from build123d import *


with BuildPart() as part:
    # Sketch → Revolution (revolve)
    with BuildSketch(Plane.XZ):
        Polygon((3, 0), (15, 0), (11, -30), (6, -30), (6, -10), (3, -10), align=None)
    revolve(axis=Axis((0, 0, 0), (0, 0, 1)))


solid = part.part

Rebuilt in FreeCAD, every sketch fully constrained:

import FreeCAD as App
import Part
import Sketcher

V = App.Vector
Q = App.Units.Quantity


def add_polygon(sketch, points):
    """Adds a closed chain of lines whose ends are joined by coincident constraints."""
    first, n = sketch.GeometryCount, len(points)
    for a, b in zip(points, points[1:] + points[:1]):
        sketch.addGeometry(Part.LineSegment(App.Vector(*a, 0), App.Vector(*b, 0)), False)
    for i in range(n):
        sketch.addConstraint(Sketcher.Constraint("Coincident", first + i, 2, first + (i + 1) % n, 1))

doc = App.newDocument("Part")
body = doc.addObject("PartDesign::Body", "Body")

# Sketch on XZ plane
sketch1 = body.newObject("Sketcher::SketchObject", "Sketch")
sketch1.AttachmentSupport = (doc.getObject("XZ_Plane"), [""])
sketch1.MapMode = "FlatFace"
add_polygon(sketch1, [(15, 0), (3, 0), (3, -10), (6, -10), (6, -30), (11, -30)])  # lines 0-5
sketch1.addConstraint([
    Sketcher.Constraint("Horizontal", 0),
    Sketcher.Constraint("Vertical", 1),
    Sketcher.Constraint("Horizontal", 2),
    Sketcher.Constraint("Vertical", 3),
    Sketcher.Constraint("Horizontal", 4),
    Sketcher.Constraint("PointOnObject", 0, 2, -1),
    Sketcher.Constraint("DistanceX", 0, 2, 0, 1, Q("12 mm")),
    Sketcher.Constraint("DistanceX", 2, 1, 2, 2, Q("3 mm")),
    Sketcher.Constraint("DistanceX", 4, 1, 4, 2, Q("5 mm")),
    Sketcher.Constraint("DistanceY", 1, 2, 1, 1, Q("10 mm")),
    Sketcher.Constraint("DistanceY", 3, 2, 3, 1, Q("20 mm")),
    Sketcher.Constraint("DistanceX", -1, 1, 0, 2, Q("3 mm")),
])
revolution = body.newObject("PartDesign::Revolution", "Revolution")
revolution.Profile = sketch1
revolution.ReferenceAxis = (sketch1, ["V_Axis"])
revolution.Angle = 360

doc.recompute()
